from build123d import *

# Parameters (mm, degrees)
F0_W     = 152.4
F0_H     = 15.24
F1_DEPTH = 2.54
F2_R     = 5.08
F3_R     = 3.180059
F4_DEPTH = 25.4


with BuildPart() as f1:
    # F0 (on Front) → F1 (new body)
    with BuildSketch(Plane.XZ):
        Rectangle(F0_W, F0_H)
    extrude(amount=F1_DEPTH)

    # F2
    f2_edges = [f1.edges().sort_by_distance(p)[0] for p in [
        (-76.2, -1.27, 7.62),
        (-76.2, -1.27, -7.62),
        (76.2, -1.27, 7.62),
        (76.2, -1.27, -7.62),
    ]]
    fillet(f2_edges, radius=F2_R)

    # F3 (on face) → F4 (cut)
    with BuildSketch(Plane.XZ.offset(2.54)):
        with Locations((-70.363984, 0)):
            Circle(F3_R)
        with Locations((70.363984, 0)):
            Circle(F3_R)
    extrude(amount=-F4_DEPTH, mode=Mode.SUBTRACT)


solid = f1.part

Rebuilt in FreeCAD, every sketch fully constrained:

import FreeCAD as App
import Part
import Sketcher

V = App.Vector
Q = App.Units.Quantity


def edges_at(feature, points):
    """Names of the edges that pass closest to the given points."""
    edges = feature.Shape.Edges
    near = lambda p: min(range(len(edges)), key=lambda i: edges[i].distToShape(Part.Vertex(*p))[0])
    return sorted({f"Edge{near(p) + 1}" for p in points})


def add_polygon(sketch, points):
    """Adds a closed chain of lines whose ends are joined by coincident constraints."""
    first, n = sketch.GeometryCount, len(points)
    for a, b in zip(points, points[1:] + points[:1]):
        sketch.addGeometry(Part.LineSegment(App.Vector(*a, 0), App.Vector(*b, 0)), False)
    for i in range(n):
        sketch.addConstraint(Sketcher.Constraint("Coincident", first + i, 2, first + (i + 1) % n, 1))

doc = App.newDocument("Part")
body = doc.addObject("PartDesign::Body", "Body")

# Sketch on XZ plane
sketch1 = body.newObject("Sketcher::SketchObject", "Sketch")
sketch1.AttachmentSupport = (doc.getObject("XZ_Plane"), [""])
sketch1.MapMode = "FlatFace"
add_polygon(sketch1, [(-76, 8), (-76, -8), (76, -8), (76, 8)])  # lines 0-3
sketch1.addConstraint(Sketcher.Constraint("Vertical", 0))
sketch1.addConstraint(Sketcher.Constraint("Horizontal", 1))
sketch1.addConstraint(Sketcher.Constraint("Vertical", 2))
sketch1.addConstraint(Sketcher.Constraint("Horizontal", 3))
sketch1.addConstraint(Sketcher.Constraint("Symmetric", 0, 2, 2, 2, -1, 1))
sketch1.addConstraint(Sketcher.Constraint("DistanceX", 1, 1, 1, 2, Q("6 in")))
sketch1.addConstraint(Sketcher.Constraint("DistanceY", 0, 2, 0, 1, Q("0.6 in")))
pad1 = body.newObject("PartDesign::Pad", "Pad")
pad1.Profile = sketch1
pad1.Length = Q("0.1 in")
doc.recompute()

fillet = body.newObject("PartDesign::Fillet", "Fillet")
fillet.Base = (pad1, edges_at(pad1, [
    (-76.2, -1.27, 7.62),
    (-76.2, -1.27, -7.62),
    (76.2, -1.27, 7.62),
    (76.2, -1.27, -7.62),
]))
fillet.Radius = Q("0.2 in")

# Sketch on XZ plane
sketch2 = body.newObject("Sketcher::SketchObject", "Sketch001")
sketch2.AttachmentSupport = (doc.getObject("XZ_Plane"), [""])
sketch2.MapMode = "FlatFace"
sketch2.AttachmentOffset = App.Placement(V(0, 0, 0.1 * 25.4), App.Rotation())
sketch2.addGeometry(Part.Circle(V(-70.4, 0, 0), V(0, 0, 1), 3.2), False)
sketch2.addGeometry(Part.Circle(V(70.4, 0, 0), V(0, 0, 1), 3.2), False)
sketch2.addConstraint(Sketcher.Constraint("Equal", 0, 1))
sketch2.addConstraint(Sketcher.Constraint("Symmetric", 0, 3, 1, 3, -1, 1))
sketch2.addConstraint(Sketcher.Constraint("PointOnObject", 0, 3, -1))
sketch2.addConstraint(Sketcher.Constraint("Diameter", 0, 6.360118))
sketch2.addConstraint(Sketcher.Constraint("DistanceX", 0, 3, 1, 3, 140.727968))
pocket1 = body.newObject("PartDesign::Pocket", "Pocket")
pocket1.Profile = sketch2
pocket1.Length = Q("1 in")

doc.recompute()
